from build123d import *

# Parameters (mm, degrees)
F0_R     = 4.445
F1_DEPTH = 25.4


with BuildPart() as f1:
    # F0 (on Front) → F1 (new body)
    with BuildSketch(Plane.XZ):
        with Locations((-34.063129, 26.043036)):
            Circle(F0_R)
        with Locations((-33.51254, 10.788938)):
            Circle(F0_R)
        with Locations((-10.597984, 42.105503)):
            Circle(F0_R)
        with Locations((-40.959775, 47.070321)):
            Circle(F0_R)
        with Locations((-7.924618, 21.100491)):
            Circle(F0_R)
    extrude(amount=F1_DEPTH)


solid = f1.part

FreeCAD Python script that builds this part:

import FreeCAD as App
import Part
import Sketcher
from FreeCAD import Vector
Q = App.Units.Quantity

doc = App.newDocument("Part")
params = doc.addObject("Spreadsheet::Sheet", "Params")
for row, (alias, value) in enumerate([
    ("sketch1_diameter", "0.35 in"),
    ("pad1_length", "1 in"),
], start=1):
    params.set(f"A{row}", alias)
    params.set(f"B{row}", "=" + value)
    params.setAlias(f"B{row}", alias)

body = doc.addObject("PartDesign::Body", "Body")
body.AllowCompound = True

# Sketch on XZ plane
sketch1 = body.newObject("Sketcher::SketchObject", "Sketch")
sketch1.AttachmentSupport = (doc.getObject("XZ_Plane"), [""])
sketch1.MapMode = "FlatFace"
sketch1.addGeometry(Part.Circle(Vector(-34.063129, 26.043036, 0), Vector(0, 0, 1), 4.445), False)
sketch1.addGeometry(Part.Circle(Vector(-33.51254, 10.788938, 0), Vector(0, 0, 1), 4.445), False)
sketch1.addGeometry(Part.Circle(Vector(-10.597984, 42.105503, 0), Vector(0, 0, 1), 4.445), False)
sketch1.addGeometry(Part.Circle(Vector(-40.959775, 47.070321, 0), Vector(0, 0, 1), 4.445), False)
sketch1.addGeometry(Part.Circle(Vector(-7.924618, 21.100491, 0), Vector(0, 0, 1), 4.445), False)
sketch1.addConstraint(Sketcher.Constraint("Equal", 0, 1))
sketch1.addConstraint(Sketcher.Constraint("Equal", 1, 2))
sketch1.addConstraint(Sketcher.Constraint("Equal", 2, 3))
sketch1.addConstraint(Sketcher.Constraint("Equal", 3, 4))
sketch1.addConstraint(Sketcher.Constraint("Diameter", 0, Q("0.35 in")))
sketch1.addConstraint(Sketcher.Constraint("DistanceY", 1, 3, 0, 3, Q("15.254098 mm")))
sketch1.addConstraint(Sketcher.Constraint("DistanceX", 0, 3, -1, 1, Q("34.063129 mm")))
sketch1.addConstraint(Sketcher.Constraint("DistanceX", 1, 3, -1, 1, Q("33.51254 mm")))
sketch1.addConstraint(Sketcher.Constraint("DistanceY", -1, 1, 3, 3, Q("47.070321 mm")))
sketch1.addConstraint(Sketcher.Constraint("DistanceY", -1, 1, 4, 3, Q("21.100491 mm")))
sketch1.addConstraint(Sketcher.Constraint("DistanceX", 3, 3, 2, 3, Q("30.361791 mm")))
sketch1.addConstraint(Sketcher.Constraint("DistanceY", 2, 3, 3, 3, Q("4.964818 mm")))
sketch1.addConstraint(Sketcher.Constraint("DistanceX", 0, 3, 4, 3, Q("26.138511 mm")))
sketch1.addConstraint(Sketcher.Constraint("DistanceY", -1, 1, 0, 3, Q("26.043036 mm")))
sketch1.addConstraint(Sketcher.Constraint("DistanceX", 2, 3, -1, 1, Q("10.597984 mm")))
sketch1.setExpression("Constraints[4]", "Params.sketch1_diameter")
pad1 = body.newObject("PartDesign::Pad", "Pad")
pad1.Profile = sketch1
pad1.setExpression("Length", "Params.pad1_length")

doc.recompute()
